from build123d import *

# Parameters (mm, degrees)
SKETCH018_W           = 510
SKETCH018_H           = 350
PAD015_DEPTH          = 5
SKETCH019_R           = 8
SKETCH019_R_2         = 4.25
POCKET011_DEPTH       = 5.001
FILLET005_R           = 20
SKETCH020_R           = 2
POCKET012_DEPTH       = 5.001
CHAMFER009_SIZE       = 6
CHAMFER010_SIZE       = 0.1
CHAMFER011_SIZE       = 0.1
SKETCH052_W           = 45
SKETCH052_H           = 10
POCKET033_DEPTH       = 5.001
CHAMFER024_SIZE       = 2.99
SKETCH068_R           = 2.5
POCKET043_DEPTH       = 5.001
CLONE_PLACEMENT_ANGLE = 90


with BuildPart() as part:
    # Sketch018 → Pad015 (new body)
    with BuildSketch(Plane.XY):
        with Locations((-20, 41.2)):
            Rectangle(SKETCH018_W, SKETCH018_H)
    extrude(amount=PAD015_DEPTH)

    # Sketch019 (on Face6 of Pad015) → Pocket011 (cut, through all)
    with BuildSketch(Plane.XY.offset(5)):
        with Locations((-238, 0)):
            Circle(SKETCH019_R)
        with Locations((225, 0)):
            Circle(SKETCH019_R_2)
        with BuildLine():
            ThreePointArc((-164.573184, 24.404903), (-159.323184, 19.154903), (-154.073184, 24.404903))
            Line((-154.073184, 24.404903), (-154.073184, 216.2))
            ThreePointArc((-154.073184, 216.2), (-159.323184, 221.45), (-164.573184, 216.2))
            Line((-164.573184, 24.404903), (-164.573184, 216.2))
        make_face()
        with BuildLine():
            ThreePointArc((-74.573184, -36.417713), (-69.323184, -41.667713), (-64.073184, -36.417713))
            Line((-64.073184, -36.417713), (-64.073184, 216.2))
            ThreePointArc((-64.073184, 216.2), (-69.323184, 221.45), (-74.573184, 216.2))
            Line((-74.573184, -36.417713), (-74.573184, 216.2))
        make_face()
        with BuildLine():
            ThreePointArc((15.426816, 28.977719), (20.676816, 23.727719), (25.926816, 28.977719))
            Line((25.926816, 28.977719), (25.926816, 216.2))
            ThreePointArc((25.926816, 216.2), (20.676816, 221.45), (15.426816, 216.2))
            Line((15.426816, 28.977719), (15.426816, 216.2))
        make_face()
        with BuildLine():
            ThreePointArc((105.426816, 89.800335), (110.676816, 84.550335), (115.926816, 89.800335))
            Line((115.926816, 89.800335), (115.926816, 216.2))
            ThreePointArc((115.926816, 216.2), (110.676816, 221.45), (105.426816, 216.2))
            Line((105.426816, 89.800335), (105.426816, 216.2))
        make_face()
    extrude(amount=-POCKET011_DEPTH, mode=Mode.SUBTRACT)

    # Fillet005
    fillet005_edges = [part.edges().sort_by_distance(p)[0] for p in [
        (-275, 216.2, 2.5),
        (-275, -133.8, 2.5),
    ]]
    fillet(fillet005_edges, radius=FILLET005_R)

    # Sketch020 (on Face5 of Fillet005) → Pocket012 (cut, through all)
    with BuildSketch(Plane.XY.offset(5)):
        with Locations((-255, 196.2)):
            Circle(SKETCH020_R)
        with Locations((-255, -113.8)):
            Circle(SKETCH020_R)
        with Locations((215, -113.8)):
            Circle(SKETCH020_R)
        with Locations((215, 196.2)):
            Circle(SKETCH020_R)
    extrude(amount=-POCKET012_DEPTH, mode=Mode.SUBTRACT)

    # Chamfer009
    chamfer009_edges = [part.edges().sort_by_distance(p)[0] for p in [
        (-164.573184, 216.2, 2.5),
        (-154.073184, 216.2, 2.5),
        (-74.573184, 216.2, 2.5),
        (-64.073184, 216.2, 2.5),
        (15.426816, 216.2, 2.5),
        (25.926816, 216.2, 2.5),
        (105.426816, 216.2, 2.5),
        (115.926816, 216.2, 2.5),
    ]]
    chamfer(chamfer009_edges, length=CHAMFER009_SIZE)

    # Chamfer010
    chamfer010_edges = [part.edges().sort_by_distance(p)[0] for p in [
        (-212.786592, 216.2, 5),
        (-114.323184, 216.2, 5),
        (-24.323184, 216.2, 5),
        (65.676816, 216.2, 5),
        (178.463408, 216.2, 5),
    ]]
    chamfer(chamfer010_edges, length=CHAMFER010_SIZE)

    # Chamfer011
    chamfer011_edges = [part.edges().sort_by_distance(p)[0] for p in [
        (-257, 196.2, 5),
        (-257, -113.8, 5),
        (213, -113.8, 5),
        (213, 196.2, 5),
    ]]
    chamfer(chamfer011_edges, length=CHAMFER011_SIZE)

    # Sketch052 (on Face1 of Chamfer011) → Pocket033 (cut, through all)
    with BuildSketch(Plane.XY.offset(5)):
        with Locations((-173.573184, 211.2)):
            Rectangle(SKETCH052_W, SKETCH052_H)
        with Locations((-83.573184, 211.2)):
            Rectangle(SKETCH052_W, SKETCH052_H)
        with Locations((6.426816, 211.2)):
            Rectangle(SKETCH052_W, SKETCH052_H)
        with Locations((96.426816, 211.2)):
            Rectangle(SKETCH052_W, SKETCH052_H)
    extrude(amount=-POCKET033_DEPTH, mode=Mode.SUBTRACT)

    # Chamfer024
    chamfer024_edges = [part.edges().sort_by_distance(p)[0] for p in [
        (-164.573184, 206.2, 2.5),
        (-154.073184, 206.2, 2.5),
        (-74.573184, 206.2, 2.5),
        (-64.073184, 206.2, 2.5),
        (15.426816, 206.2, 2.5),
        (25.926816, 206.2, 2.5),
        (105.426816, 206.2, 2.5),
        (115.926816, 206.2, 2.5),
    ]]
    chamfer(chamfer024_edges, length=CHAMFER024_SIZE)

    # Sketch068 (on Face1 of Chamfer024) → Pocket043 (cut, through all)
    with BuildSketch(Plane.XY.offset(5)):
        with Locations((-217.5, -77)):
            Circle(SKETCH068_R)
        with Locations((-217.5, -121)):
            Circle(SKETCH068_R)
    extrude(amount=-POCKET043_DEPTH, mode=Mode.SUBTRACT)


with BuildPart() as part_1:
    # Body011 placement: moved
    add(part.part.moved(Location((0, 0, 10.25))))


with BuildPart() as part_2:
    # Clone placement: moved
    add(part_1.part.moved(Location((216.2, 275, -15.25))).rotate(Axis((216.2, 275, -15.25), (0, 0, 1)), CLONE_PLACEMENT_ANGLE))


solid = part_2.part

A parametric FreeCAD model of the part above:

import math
import FreeCAD as App
import Part
import Sketcher

V = App.Vector
Q = App.Units.Quantity


def edges_at(feature, points):
    """Names of the edges that pass closest to the given points."""
    edges = feature.Shape.Edges
    near = lambda p: min(range(len(edges)), key=lambda i: edges[i].distToShape(Part.Vertex(*p))[0])
    return sorted({f"Edge{near(p) + 1}" for p in points})

doc = App.newDocument("Part")
params = doc.addObject("Spreadsheet::Sheet", "Params")
for row, (alias, value) in enumerate([
    ("sketch1_width", "510 mm"),
    ("sketch1_height", "350 mm"),
    ("pad1_length", "5 mm"),
    ("sketch2_diameter", "16 mm"),
    ("sketch2_diameter2", "8.5 mm"),
    ("sketch2_radius", "5.25 mm"),
    ("fillet_radius", "20 mm"),
    ("sketch3_diameter", "4 mm"),
    ("chamfer_size", "6 mm"),
    ("chamfer2_size", "0.1 mm"),
    ("chamfer3_size", "0.1 mm"),
    ("sketch4_width", "45 mm"),
    ("sketch4_height", "10 mm"),
    ("chamfer4_size", "2.99 mm"),
    ("sketch5_diameter", "5 mm"),
], start=1):
    params.set(f"A{row}", alias)
    params.set(f"B{row}", "=" + value)
    params.setAlias(f"B{row}", alias)

body = doc.addObject("PartDesign::Body", "Body")

sketch1 = body.newObject("Sketcher::SketchObject", "Sketch")
sketch1.AttachmentSupport = (doc.getObject("XY_Plane"), [""])
sketch1.MapMode = "FlatFace"
sketch1.addGeometry([
    Part.LineSegment(V(-275, 216, 0), V(-275, -134, 0)),
    Part.LineSegment(V(-275, -134, 0), V(235, -134, 0)),
    Part.LineSegment(V(235, -134, 0), V(235, 216, 0)),
    Part.LineSegment(V(235, 216, 0), V(-275, 216, 0)),
], False)
sketch1.addConstraint([
    Sketcher.Constraint("Coincident", 0, 2, 1, 1),
    Sketcher.Constraint("Coincident", 1, 2, 2, 1),
    Sketcher.Constraint("Coincident", 2, 2, 3, 1),
    Sketcher.Constraint("Coincident", 3, 2, 0, 1),
    Sketcher.Constraint("Vertical", 0),
    Sketcher.Constraint("Horizontal", 1),
    Sketcher.Constraint("Vertical", 2),
    Sketcher.Constraint("Horizontal", 3),
    Sketcher.Constraint("DistanceX", 1, 1, 1, 2, Q("510 mm")),
    Sketcher.Constraint("DistanceY", 0, 2, 0, 1, Q("350 mm")),
    Sketcher.Constraint("DistanceX", 0, 2, -1, 1, Q("275 mm")),
    Sketcher.Constraint("DistanceY", 0, 2, -1, 1, Q("133.8 mm")),
])
sketch1.setExpression("Constraints[8]", "Params.sketch1_width")
sketch1.setExpression("Constraints[9]", "Params.sketch1_height")
pad1 = body.newObject("PartDesign::Pad", "Pad")
pad1.Profile = sketch1
pad1.setExpression("Length", "Params.pad1_length")

sketch2 = body.newObject("Sketcher::SketchObject", "Sketch001")
sketch2.AttachmentSupport = (doc.getObject("XY_Plane"), [""])
sketch2.MapMode = "FlatFace"
sketch2.AttachmentOffset = App.Placement(V(0, 0, 5), App.Rotation())
sketch2.addGeometry([
    Part.Circle(V(-238, 0, 0), V(0, 0, 1), 8),
    Part.Circle(V(225, 0, 0), V(0, 0, 1), 4.2),
    Part.ArcOfCircle(Part.Circle(V(-159.3, 24.4, 0), V(0, 0, 1), 5.2), math.radians(180), math.radians(360)),
    Part.LineSegment(V(-154.1, 24.4, 0), V(-154.1, 216.2, 0)),
    Part.ArcOfCircle(Part.Circle(V(-159.3, 216.2, 0), V(0, 0, 1), 5.2), math.radians(0), math.radians(180)),
    Part.LineSegment(V(-164.6, 216.2, 0), V(-164.6, 24.4, 0)),
    Part.ArcOfCircle(Part.Circle(V(-69.3, -36.4, 0), V(0, 0, 1), 5.2), math.radians(180), math.radians(360)),
    Part.LineSegment(V(-64.1, -36.4, 0), V(-64.1, 216.2, 0)),
    Part.ArcOfCircle(Part.Circle(V(-69.3, 216.2, 0), V(0, 0, 1), 5.2), math.radians(0), math.radians(180)),
    Part.LineSegment(V(-74.6, 216.2, 0), V(-74.6, -36.4, 0)),
    Part.ArcOfCircle(Part.Circle(V(20.7, 29, 0), V(0, 0, 1), 5.2), math.radians(180), math.radians(360)),
    Part.LineSegment(V(25.9, 29, 0), V(25.9, 216.2, 0)),
    Part.ArcOfCircle(Part.Circle(V(20.7, 216.2, 0), V(0, 0, 1), 5.2), math.radians(0), math.radians(180)),
    Part.LineSegment(V(15.4, 216.2, 0), V(15.4, 29, 0)),
    Part.ArcOfCircle(Part.Circle(V(110.7, 89.8, 0), V(0, 0, 1), 5.2), math.radians(180), math.radians(360)),
    Part.LineSegment(V(115.9, 89.8, 0), V(115.9, 216.2, 0)),
    Part.ArcOfCircle(Part.Circle(V(110.7, 216.2, 0), V(0, 0, 1), 5.2), math.radians(0), math.radians(180)),
    Part.LineSegment(V(105.4, 216.2, 0), V(105.4, 89.8, 0)),
], False)
sketch2.addConstraint([
    Sketcher.Constraint("Tangent", 2, 2, 3, 1),
    Sketcher.Constraint("Tangent", 3, 2, 4, 1),
    Sketcher.Constraint("Tangent", 4, 2, 5, 1),
    Sketcher.Constraint("Tangent", 5, 2, 2, 1),
    Sketcher.Constraint("Tangent", 6, 2, 7, 1),
    Sketcher.Constraint("Tangent", 7, 2, 8, 1),
    Sketcher.Constraint("Tangent", 8, 2, 9, 1),
    Sketcher.Constraint("Tangent", 9, 2, 6, 1),
    Sketcher.Constraint("Tangent", 10, 2, 11, 1),
    Sketcher.Constraint("Tangent", 11, 2, 12, 1),
    Sketcher.Constraint("Tangent", 12, 2, 13, 1),
    Sketcher.Constraint("Tangent", 13, 2, 10, 1),
    Sketcher.Constraint("Tangent", 14, 2, 15, 1),
    Sketcher.Constraint("Tangent", 15, 2, 16, 1),
    Sketcher.Constraint("Tangent", 16, 2, 17, 1),
    Sketcher.Constraint("Tangent", 17, 2, 14, 1),
    Sketcher.Constraint("Vertical", 3),
    Sketcher.Constraint("Vertical", 5),
    Sketcher.Constraint("Vertical", 7),
    Sketcher.Constraint("Vertical", 9),
    Sketcher.Constraint("Vertical", 11),
    Sketcher.Constraint("Vertical", 13),
    Sketcher.Constraint("Vertical", 15),
    Sketcher.Constraint("Vertical", 17),
    Sketcher.Constraint("Equal", 4, 6),
    Sketcher.Constraint("Equal", 8, 10),
    Sketcher.Constraint("Equal", 12, 14),
    Sketcher.Constraint("PointOnObject", 0, 3, -1),
    Sketcher.Constraint("PointOnObject", 1, 3, -1),
    Sketcher.Constraint("Horizontal", 4, 3, 8, 3),
    Sketcher.Constraint("Horizontal", 8, 3, 12, 3),
    Sketcher.Constraint("Horizontal", 12, 3, 16, 3),
    Sketcher.Constraint("Diameter", 0, Q("16 mm")),
    Sketcher.Constraint("Diameter", 1, Q("8.5 mm")),
    Sketcher.Constraint("Radius", 2, Q("5.25 mm")),
    Sketcher.Constraint("DistanceX", 0, 3, -1, 1, Q("238 mm")),
    Sketcher.Constraint("DistanceX", -1, 1, 1, 3, Q("225 mm")),
    Sketcher.Constraint("DistanceX", 2, 3, 6, 3, Q("90 mm")),
    Sketcher.Constraint("DistanceX", 6, 3, 10, 3, Q("90 mm")),
    Sketcher.Constraint("DistanceX", 10, 3, 14, 3, Q("90 mm")),
    Sketcher.Constraint("DistanceY", -1, 1, 4, 3, Q("216.2 mm")),
    Sketcher.Constraint("DistanceY", 11, 1, 11, 2, Q("187.222281 mm")),
    Sketcher.Constraint("DistanceY", 3, 1, 3, 2, Q("191.795097 mm")),
    Sketcher.Constraint("DistanceY", 7, 1, 7, 2, Q("252.617713 mm")),
    Sketcher.Constraint("DistanceY", 15, 1, 15, 2, Q("126.399665 mm")),
    Sketcher.Constraint("DistanceX", 2, 3, -1, 1, Q("159.323184 mm")),
])
sketch2.setExpression("Constraints[32]", "Params.sketch2_diameter")
sketch2.setExpression("Constraints[33]", "Params.sketch2_diameter2")
sketch2.setExpression("Constraints[34]", "Params.sketch2_radius")
pocket1 = body.newObject("PartDesign::Pocket", "Pocket")
pocket1.Profile = sketch2
pocket1.Type = "ThroughAll"
doc.recompute()

fillet = body.newObject("PartDesign::Fillet", "Fillet")
fillet.Base = (pocket1, edges_at(pocket1, [(-275, 216.2, 2.5), (-275, -133.8, 2.5)]))
fillet.setExpression("Radius", "Params.fillet_radius")

sketch3 = body.newObject("Sketcher::SketchObject", "Sketch002")
sketch3.AttachmentSupport = (doc.getObject("XY_Plane"), [""])
sketch3.MapMode = "FlatFace"
sketch3.AttachmentOffset = App.Placement(V(0, 0, 5), App.Rotation())
sketch3.addGeometry([
    Part.Circle(V(-255, 196.2, 0), V(0, 0, 1), 2),
    Part.Circle(V(-255, -113.8, 0), V(0, 0, 1), 2),
    Part.Circle(V(215, -113.8, 0), V(0, 0, 1), 2),
    Part.Circle(V(215, 196.2, 0), V(0, 0, 1), 2),
], False)
sketch3.addConstraint([
    Sketcher.Constraint("Equal", 0, 1),
    Sketcher.Constraint("Equal", 1, 2),
    Sketcher.Constraint("Equal", 2, 3),
    Sketcher.Constraint("Horizontal", 1, 3, 2, 3),
    Sketcher.Constraint("Horizontal", 0, 3, 3, 3),
    Sketcher.Constraint("Vertical", 0, 3, 1, 3),
    Sketcher.Constraint("Vertical", 2, 3, 3, 3),
    Sketcher.Constraint("Diameter", 0, Q("4 mm")),
    Sketcher.Constraint("DistanceX", 0, 3, -1, 1, Q("255 mm")),
    Sketcher.Constraint("DistanceX", -1, 1, 2, 3, Q("215 mm")),
    Sketcher.Constraint("DistanceY", 1, 3, 0, 3, Q("310 mm")),
    Sketcher.Constraint("DistanceY", -1, 1, 0, 3, Q("196.2 mm")),
])
sketch3.setExpression("Constraints[7]", "Params.sketch3_diameter")
pocket2 = body.newObject("PartDesign::Pocket", "Pocket001")
pocket2.Profile = sketch3
pocket2.Type = "ThroughAll"
doc.recompute()

chamfer = body.newObject("PartDesign::Chamfer", "Chamfer")
chamfer.Base = (pocket2, edges_at(pocket2, [
    (-164.573, 216.2, 2.5),
    (-154.073, 216.2, 2.5),
    (-74.573, 216.2, 2.5),
    (-64.073, 216.2, 2.5),
    (15.427, 216.2, 2.5),
    (25.927, 216.2, 2.5),
    (105.427, 216.2, 2.5),
    (115.927, 216.2, 2.5),
]))
chamfer.setExpression("Size", "Params.chamfer_size")
doc.recompute()

chamfer2 = body.newObject("PartDesign::Chamfer", "Chamfer001")
chamfer2.Base = (chamfer, edges_at(chamfer, [
    (-212.787, 216.2, 5),
    (-114.323, 216.2, 5),
    (-24.323, 216.2, 5),
    (65.677, 216.2, 5),
    (178.463, 216.2, 5),
]))
chamfer2.setExpression("Size", "Params.chamfer2_size")
doc.recompute()

chamfer3 = body.newObject("PartDesign::Chamfer", "Chamfer002")
chamfer3.Base = (chamfer2, edges_at(chamfer2, [
    (-257, 196.2, 5),
    (-257, -113.8, 5),
    (213, -113.8, 5),
    (213, 196.2, 5),
]))
chamfer3.setExpression("Size", "Params.chamfer3_size")

sketch4 = body.newObject("Sketcher::SketchObject", "Sketch003")
sketch4.AttachmentSupport = (doc.getObject("XY_Plane"), [""])
sketch4.MapMode = "FlatFace"
sketch4.AttachmentOffset = App.Placement(V(0, 0, 5), App.Rotation())
sketch4.addGeometry([
    Part.LineSegment(V(-196, 216, 0), V(-196, 206, 0)),
    Part.LineSegment(V(-196, 206, 0), V(-151, 206, 0)),
    Part.LineSegment(V(-151, 206, 0), V(-151, 216, 0)),
    Part.LineSegment(V(-151, 216, 0), V(-196, 216, 0)),
    Part.LineSegment(V(-106, 216, 0), V(-106, 206, 0)),
    Part.LineSegment(V(-106, 206, 0), V(-61, 206, 0)),
    Part.LineSegment(V(-61, 206, 0), V(-61, 216, 0)),
    Part.LineSegment(V(-61, 216, 0), V(-106, 216, 0)),
    Part.LineSegment(V(-16, 216, 0), V(-16, 206, 0)),
    Part.LineSegment(V(-16, 206, 0), V(29, 206, 0)),
    Part.LineSegment(V(29, 206, 0), V(29, 216, 0)),
    Part.LineSegment(V(29, 216, 0), V(-16, 216, 0)),
    Part.LineSegment(V(74, 216, 0), V(74, 206, 0)),
    Part.LineSegment(V(74, 206, 0), V(119, 206, 0)),
    Part.LineSegment(V(119, 206, 0), V(119, 216, 0)),
    Part.LineSegment(V(119, 216, 0), V(74, 216, 0)),
], False)
sketch4.addConstraint([
    Sketcher.Constraint("Coincident", 0, 2, 1, 1),
    Sketcher.Constraint("Coincident", 1, 2, 2, 1),
    Sketcher.Constraint("Coincident", 2, 2, 3, 1),
    Sketcher.Constraint("Coincident", 3, 2, 0, 1),
    Sketcher.Constraint("Coincident", 4, 2, 5, 1),
    Sketcher.Constraint("Coincident", 5, 2, 6, 1),
    Sketcher.Constraint("Coincident", 6, 2, 7, 1),
    Sketcher.Constraint("Coincident", 7, 2, 4, 1),
    Sketcher.Constraint("Coincident", 8, 2, 9, 1),
    Sketcher.Constraint("Coincident", 9, 2, 10, 1),
    Sketcher.Constraint("Coincident", 10, 2, 11, 1),
    Sketcher.Constraint("Coincident", 11, 2, 8, 1),
    Sketcher.Constraint("Coincident", 12, 2, 13, 1),
    Sketcher.Constraint("Coincident", 13, 2, 14, 1),
    Sketcher.Constraint("Coincident", 14, 2, 15, 1),
    Sketcher.Constraint("Coincident", 15, 2, 12, 1),
    Sketcher.Constraint("Vertical", 0),
    Sketcher.Constraint("Horizontal", 1),
    Sketcher.Constraint("Vertical", 2),
    Sketcher.Constraint("Horizontal", 3),
    Sketcher.Constraint("Vertical", 4),
    Sketcher.Constraint("Horizontal", 5),
    Sketcher.Constraint("Vertical", 6),
    Sketcher.Constraint("Horizontal", 7),
    Sketcher.Constraint("Vertical", 8),
    Sketcher.Constraint("Horizontal", 9),
    Sketcher.Constraint("Vertical", 10),
    Sketcher.Constraint("Horizontal", 11),
    Sketcher.Constraint("Vertical", 12),
    Sketcher.Constraint("Horizontal", 13),
    Sketcher.Constraint("Vertical", 14),
    Sketcher.Constraint("Horizontal", 15),
    Sketcher.Constraint("Horizontal", 1, 2, 4, 2),
    Sketcher.Constraint("Horizontal", 3, 2, 6, 2),
    Sketcher.Constraint("Horizontal", 5, 2, 8, 2),
    Sketcher.Constraint("Horizontal", 7, 2, 10, 2),
    Sketcher.Constraint("Horizontal", 9, 2, 12, 2),
    Sketcher.Constraint("Horizontal", 11, 2, 14, 2),
    Sketcher.Constraint("Equal", 3, 5),
    Sketcher.Constraint("Equal", 7, 9),
    Sketcher.Constraint("Equal", 11, 13),
    Sketcher.Constraint("DistanceX", 1, 1, 1, 2, Q("45 mm")),
    Sketcher.Constraint("DistanceY", 0, 2, 0, 1, Q("10 mm")),
    Sketcher.Constraint("DistanceX", 1, 2, 4, 2, Q("45 mm")),
    Sketcher.Constraint("DistanceX", 5, 2, 8, 2, Q("45 mm")),
    Sketcher.Constraint("DistanceX", 9, 2, 12, 2, Q("45 mm")),
    Sketcher.Constraint("DistanceY", -1, 1, 0, 2, Q("206.2 mm")),
    Sketcher.Constraint("DistanceX", 0, 2, -1, 1, Q("196.073184 mm")),
])
sketch4.setExpression("Constraints[41]", "Params.sketch4_width")
sketch4.setExpression("Constraints[42]", "Params.sketch4_height")
pocket3 = body.newObject("PartDesign::Pocket", "Pocket002")
pocket3.Profile = sketch4
pocket3.Type = "ThroughAll"
doc.recompute()

chamfer4 = body.newObject("PartDesign::Chamfer", "Chamfer003")
chamfer4.Base = (pocket3, edges_at(pocket3, [
    (-164.573, 206.2, 2.5),
    (-154.073, 206.2, 2.5),
    (-74.573, 206.2, 2.5),
    (-64.073, 206.2, 2.5),
    (15.427, 206.2, 2.5),
    (25.927, 206.2, 2.5),
    (105.427, 206.2, 2.5),
    (115.927, 206.2, 2.5),
]))
chamfer4.setExpression("Size", "Params.chamfer4_size")

sketch5 = body.newObject("Sketcher::SketchObject", "Sketch004")
sketch5.AttachmentSupport = (doc.getObject("XY_Plane"), [""])
sketch5.MapMode = "FlatFace"
sketch5.AttachmentOffset = App.Placement(V(0, 0, 5), App.Rotation())
sketch5.addGeometry([
    Part.Circle(V(-217.5, -77, 0), V(0, 0, 1), 2.5),
    Part.Circle(V(-217.5, -121, 0), V(0, 0, 1), 2.5),
], False)
sketch5.addConstraint([
    Sketcher.Constraint("Equal", 0, 1),
    Sketcher.Constraint("Vertical", 0, 3, 1, 3),
    Sketcher.Constraint("Diameter", 0, Q("5 mm")),
    Sketcher.Constraint("DistanceY", 0, 3, -1, 1, Q("77 mm")),
    Sketcher.Constraint("DistanceY", 1, 3, -1, 1, Q("121 mm")),
    Sketcher.Constraint("DistanceX", 0, 3, -1, 1, Q("217.5 mm")),
])
sketch5.setExpression("Constraints[2]", "Params.sketch5_diameter")
pocket4 = body.newObject("PartDesign::Pocket", "Pocket003")
pocket4.Profile = sketch5
pocket4.Type = "ThroughAll"
body2 = doc.addObject("PartDesign::Body", "Body001")
doc.recompute()

body.Placement = App.Placement(V(0, 0, 10.25), App.Rotation(V(0, 0, 1), 0))
boolean = body2.newObject("PartDesign::Boolean", "Boolean")
boolean.Type = "Fuse"
boolean.addObjects([body])
body3 = doc.addObject("PartDesign::Body", "Body002")
doc.recompute()

body2.Placement = App.Placement(V(216.2, 275, -15.25), App.Rotation(V(0, 0, 1), 90))
boolean2 = body3.newObject("PartDesign::Boolean", "Boolean001")
boolean2.Type = "Fuse"
boolean2.addObjects([body2])

doc.recompute()
